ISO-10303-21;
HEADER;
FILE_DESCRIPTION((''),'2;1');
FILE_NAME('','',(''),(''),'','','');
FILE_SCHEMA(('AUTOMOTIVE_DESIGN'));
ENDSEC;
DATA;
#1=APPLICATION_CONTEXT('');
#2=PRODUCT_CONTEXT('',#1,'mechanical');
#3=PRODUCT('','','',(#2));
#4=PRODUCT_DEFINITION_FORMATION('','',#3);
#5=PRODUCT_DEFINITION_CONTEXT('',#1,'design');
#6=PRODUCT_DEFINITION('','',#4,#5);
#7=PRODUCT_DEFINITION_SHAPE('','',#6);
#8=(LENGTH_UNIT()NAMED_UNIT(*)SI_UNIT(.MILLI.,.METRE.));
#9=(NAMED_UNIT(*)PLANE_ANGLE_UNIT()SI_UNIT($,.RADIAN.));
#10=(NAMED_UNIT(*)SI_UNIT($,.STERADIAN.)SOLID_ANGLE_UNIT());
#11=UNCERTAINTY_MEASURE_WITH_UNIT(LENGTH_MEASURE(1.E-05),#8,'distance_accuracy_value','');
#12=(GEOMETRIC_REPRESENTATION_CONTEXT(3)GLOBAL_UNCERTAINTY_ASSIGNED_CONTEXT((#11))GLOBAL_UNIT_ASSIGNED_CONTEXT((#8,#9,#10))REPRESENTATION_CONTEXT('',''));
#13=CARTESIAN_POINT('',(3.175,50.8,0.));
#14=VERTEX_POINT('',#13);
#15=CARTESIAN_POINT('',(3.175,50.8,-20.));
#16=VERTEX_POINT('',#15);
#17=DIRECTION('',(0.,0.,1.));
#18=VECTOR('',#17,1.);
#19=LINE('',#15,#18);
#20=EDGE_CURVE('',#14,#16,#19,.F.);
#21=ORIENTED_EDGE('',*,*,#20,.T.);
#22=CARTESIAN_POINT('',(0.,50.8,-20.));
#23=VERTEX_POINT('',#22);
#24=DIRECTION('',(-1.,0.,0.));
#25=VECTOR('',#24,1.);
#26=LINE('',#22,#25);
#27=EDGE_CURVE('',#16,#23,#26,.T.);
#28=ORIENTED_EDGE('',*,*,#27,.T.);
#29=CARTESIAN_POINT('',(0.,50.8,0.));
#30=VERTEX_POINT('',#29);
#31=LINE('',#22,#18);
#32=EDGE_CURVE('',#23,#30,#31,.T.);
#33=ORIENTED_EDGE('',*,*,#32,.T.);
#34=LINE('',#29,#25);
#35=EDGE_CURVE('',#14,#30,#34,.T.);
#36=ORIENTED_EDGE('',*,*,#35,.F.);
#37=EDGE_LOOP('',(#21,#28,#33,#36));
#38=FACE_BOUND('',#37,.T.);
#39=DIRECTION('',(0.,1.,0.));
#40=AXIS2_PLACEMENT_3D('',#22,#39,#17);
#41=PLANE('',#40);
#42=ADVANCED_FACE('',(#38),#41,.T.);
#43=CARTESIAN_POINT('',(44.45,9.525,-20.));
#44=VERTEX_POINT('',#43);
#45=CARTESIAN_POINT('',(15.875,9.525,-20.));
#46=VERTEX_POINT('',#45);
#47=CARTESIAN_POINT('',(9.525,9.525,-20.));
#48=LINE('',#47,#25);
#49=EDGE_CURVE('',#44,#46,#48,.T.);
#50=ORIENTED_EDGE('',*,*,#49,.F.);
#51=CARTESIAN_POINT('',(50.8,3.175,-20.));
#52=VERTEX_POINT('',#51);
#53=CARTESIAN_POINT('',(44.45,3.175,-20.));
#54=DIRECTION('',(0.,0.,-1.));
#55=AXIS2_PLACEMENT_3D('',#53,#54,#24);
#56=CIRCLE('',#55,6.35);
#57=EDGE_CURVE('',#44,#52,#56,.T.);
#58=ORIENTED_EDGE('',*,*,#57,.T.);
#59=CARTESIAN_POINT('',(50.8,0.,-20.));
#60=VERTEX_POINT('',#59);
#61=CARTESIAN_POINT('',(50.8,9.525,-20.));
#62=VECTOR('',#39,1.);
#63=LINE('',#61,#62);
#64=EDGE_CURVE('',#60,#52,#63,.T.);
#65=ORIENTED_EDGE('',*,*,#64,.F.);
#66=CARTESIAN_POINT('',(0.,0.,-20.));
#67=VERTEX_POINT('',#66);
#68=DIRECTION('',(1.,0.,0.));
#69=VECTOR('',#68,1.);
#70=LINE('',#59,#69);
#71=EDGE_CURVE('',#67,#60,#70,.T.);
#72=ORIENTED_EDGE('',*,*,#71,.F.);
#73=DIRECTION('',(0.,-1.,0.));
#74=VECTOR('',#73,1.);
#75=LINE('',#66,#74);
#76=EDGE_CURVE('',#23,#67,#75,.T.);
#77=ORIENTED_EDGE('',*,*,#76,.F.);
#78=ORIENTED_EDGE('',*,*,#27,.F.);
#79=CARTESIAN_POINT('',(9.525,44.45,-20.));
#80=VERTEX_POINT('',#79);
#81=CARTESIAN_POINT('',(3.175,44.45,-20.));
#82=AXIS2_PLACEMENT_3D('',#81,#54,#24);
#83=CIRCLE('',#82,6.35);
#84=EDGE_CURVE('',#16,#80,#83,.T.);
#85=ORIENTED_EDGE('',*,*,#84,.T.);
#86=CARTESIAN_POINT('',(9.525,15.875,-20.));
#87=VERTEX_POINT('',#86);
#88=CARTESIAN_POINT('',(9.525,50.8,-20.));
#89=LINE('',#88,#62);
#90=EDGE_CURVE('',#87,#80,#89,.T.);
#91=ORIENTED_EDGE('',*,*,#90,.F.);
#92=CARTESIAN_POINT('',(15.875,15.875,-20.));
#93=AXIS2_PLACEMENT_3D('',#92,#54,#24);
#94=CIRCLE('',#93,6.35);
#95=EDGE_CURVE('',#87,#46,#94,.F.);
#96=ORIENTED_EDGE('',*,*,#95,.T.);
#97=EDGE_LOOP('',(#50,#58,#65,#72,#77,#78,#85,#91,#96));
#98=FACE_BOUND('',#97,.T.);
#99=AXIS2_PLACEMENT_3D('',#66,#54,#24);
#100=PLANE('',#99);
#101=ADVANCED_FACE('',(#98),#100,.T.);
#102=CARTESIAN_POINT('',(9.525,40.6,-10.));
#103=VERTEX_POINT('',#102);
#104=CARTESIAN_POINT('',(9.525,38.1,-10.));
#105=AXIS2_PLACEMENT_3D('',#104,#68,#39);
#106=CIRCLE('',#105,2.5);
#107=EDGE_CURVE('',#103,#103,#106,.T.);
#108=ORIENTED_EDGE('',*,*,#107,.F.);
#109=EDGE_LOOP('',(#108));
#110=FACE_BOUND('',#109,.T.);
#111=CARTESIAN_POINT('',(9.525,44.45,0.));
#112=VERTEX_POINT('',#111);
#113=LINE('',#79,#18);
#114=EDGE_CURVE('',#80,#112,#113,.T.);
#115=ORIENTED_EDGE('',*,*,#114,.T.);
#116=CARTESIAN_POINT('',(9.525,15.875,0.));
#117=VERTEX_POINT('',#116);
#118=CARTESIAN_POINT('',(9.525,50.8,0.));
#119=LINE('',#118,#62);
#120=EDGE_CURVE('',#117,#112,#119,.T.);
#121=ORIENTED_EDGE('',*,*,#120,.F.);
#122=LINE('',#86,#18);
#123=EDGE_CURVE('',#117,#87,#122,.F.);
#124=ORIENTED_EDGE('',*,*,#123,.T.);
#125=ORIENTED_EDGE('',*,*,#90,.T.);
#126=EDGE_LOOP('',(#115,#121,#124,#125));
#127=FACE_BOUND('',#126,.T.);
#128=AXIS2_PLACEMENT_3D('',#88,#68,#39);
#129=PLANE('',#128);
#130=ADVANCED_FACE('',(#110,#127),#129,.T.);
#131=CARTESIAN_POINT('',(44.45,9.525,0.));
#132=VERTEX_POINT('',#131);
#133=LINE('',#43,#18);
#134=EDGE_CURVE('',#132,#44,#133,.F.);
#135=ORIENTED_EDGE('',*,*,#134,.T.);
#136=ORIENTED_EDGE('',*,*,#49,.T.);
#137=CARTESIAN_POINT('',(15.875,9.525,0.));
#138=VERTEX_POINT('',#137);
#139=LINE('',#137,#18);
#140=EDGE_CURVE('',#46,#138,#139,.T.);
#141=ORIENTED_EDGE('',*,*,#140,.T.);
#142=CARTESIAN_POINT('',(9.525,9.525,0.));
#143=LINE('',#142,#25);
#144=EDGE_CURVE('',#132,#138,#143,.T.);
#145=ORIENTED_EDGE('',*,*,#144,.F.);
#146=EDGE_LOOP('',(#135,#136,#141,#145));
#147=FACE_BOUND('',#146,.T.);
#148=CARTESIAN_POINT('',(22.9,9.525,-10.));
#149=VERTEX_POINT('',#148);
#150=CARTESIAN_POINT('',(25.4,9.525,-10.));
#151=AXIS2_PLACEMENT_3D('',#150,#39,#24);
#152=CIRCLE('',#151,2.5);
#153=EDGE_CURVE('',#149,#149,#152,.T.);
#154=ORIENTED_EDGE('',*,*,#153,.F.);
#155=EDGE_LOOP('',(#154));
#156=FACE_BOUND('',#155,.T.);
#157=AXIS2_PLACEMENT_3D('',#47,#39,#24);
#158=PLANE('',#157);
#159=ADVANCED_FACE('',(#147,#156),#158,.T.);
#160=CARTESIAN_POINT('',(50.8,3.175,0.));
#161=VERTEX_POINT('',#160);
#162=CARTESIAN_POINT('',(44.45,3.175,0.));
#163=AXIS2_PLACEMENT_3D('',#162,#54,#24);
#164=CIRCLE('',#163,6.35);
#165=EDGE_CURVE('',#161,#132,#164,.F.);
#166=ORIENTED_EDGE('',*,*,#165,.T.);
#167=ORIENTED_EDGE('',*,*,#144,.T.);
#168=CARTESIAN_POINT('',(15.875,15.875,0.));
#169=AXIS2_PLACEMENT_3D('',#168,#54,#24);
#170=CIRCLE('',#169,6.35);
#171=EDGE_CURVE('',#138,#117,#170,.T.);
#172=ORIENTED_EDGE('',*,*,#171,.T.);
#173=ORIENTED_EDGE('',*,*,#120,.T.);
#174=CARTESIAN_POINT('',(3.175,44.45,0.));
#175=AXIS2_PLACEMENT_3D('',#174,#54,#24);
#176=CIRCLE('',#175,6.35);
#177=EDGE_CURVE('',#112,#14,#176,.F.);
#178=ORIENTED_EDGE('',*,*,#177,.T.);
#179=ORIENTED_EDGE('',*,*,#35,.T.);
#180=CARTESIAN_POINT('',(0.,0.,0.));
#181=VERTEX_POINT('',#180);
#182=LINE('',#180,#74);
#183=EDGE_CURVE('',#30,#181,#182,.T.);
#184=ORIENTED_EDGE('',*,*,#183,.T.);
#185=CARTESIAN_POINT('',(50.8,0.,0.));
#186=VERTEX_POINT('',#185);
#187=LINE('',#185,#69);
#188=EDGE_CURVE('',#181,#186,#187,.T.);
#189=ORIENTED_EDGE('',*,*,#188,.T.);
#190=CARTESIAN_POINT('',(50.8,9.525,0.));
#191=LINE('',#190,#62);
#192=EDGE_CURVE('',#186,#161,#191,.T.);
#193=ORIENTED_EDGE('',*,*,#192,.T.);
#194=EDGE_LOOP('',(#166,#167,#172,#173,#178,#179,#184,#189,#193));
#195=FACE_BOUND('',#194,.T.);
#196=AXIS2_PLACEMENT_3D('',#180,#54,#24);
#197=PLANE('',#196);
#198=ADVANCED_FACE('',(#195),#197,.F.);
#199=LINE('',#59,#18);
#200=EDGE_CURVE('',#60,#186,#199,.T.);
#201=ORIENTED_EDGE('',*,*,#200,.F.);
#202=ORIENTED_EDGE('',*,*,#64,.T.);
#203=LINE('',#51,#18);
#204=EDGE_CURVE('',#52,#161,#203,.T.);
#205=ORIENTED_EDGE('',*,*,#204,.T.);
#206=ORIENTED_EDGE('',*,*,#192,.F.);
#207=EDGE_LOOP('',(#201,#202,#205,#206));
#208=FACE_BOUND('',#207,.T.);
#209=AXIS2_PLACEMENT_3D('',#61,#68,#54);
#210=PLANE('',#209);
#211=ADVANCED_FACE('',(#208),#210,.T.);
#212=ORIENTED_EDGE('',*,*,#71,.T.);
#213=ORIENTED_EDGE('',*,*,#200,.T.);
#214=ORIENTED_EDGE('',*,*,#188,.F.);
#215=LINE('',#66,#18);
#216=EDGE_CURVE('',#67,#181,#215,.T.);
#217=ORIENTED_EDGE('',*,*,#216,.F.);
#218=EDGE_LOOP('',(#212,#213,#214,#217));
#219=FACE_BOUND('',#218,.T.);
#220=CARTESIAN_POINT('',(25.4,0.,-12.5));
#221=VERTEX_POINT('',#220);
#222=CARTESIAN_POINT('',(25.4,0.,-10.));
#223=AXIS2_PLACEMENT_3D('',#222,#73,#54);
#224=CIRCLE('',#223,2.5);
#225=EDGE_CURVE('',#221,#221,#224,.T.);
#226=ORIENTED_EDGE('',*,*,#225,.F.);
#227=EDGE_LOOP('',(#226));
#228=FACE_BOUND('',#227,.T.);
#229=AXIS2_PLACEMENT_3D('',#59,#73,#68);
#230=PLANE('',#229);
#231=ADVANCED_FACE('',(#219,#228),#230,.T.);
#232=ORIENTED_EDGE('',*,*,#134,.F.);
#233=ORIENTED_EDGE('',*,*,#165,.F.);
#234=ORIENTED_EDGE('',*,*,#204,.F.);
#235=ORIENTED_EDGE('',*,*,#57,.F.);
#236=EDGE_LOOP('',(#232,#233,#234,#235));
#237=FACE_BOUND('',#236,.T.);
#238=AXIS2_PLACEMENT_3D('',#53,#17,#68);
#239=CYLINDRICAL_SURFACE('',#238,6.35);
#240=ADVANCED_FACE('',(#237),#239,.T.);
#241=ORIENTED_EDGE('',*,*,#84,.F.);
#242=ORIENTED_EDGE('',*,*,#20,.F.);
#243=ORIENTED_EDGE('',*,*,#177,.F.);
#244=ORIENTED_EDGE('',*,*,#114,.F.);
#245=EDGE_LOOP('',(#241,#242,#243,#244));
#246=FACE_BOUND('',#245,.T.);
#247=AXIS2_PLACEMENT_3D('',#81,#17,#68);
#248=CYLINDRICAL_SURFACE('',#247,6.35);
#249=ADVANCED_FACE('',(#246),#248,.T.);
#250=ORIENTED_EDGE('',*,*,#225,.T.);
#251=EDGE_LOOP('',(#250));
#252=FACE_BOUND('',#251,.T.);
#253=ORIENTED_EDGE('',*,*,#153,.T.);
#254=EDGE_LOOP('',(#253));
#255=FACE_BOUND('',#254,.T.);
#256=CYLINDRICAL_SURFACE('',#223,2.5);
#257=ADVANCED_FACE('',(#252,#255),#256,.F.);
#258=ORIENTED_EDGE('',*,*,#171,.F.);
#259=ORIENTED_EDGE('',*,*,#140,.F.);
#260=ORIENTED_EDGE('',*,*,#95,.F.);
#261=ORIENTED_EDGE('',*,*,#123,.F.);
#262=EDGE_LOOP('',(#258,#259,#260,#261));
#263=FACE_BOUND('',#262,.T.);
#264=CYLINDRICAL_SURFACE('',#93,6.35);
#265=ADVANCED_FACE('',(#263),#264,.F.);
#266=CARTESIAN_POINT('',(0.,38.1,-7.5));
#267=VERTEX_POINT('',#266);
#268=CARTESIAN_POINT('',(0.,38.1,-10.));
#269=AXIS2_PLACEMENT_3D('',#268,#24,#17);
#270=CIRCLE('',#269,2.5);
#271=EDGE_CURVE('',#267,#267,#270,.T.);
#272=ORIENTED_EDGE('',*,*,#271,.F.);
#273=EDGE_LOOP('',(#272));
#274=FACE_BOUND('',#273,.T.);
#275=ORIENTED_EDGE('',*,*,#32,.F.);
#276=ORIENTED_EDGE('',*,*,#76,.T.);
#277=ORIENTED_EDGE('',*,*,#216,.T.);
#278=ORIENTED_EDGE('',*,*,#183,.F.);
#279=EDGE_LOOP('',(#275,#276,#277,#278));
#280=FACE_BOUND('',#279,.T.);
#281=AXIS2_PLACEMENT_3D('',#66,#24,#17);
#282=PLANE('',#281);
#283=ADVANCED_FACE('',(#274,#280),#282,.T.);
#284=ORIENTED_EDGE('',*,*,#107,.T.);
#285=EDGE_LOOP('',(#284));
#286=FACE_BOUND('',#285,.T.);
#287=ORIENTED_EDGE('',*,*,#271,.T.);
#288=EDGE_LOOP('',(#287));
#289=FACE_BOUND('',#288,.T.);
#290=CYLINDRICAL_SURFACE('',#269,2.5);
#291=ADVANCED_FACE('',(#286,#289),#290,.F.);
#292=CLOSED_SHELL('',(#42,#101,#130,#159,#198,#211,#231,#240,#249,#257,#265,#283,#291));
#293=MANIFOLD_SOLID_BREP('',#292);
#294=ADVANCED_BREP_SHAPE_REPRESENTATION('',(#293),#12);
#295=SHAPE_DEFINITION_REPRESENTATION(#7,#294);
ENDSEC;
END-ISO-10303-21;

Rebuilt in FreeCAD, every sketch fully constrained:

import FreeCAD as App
import Part
import Sketcher
Q = App.Units.Quantity


def edges_at(feature, points):
    """Names of the edges that pass closest to the given points."""
    edges = feature.Shape.Edges
    near = lambda p: min(range(len(edges)), key=lambda i: edges[i].distToShape(Part.Vertex(*p))[0])
    return sorted({f"Edge{near(p) + 1}" for p in points})


def add_polygon(sketch, points):
    """Adds a closed chain of lines whose ends are joined by coincident constraints."""
    first, n = sketch.GeometryCount, len(points)
    for a, b in zip(points, points[1:] + points[:1]):
        sketch.addGeometry(Part.LineSegment(App.Vector(*a, 0), App.Vector(*b, 0)), False)
    for i in range(n):
        sketch.addConstraint(Sketcher.Constraint("Coincident", first + i, 2, first + (i + 1) % n, 1))

doc = App.newDocument("Part")
body = doc.addObject("PartDesign::Body", "Body")

# Sketch on XY plane
sketch1 = doc.addObject("Sketcher::SketchObject", "Sketch")
body.addObject(sketch1)
sketch1.AttachmentSupport = (doc.XY_Plane, [""])
sketch1.MapMode = "FlatFace"
add_polygon(sketch1, [(0, 50.8), (0, 0), (50.8, 0), (50.8, 9.525), (9.525, 9.525), (9.525, 50.8)])  # lines 0-5
sketch1.addConstraint([
    Sketcher.Constraint("Vertical", 0),
    Sketcher.Constraint("Horizontal", 1),
    Sketcher.Constraint("Vertical", 2),
    Sketcher.Constraint("Horizontal", 3),
    Sketcher.Constraint("Vertical", 4),
    Sketcher.Constraint("Horizontal", 5),
    Sketcher.Constraint("Coincident", 0, 2, -1, 1),
    Sketcher.Constraint("Equal", 1, 0),
    Sketcher.Constraint("Equal", 5, 2),
    Sketcher.Constraint("DistanceX", 1, 1, 1, 2, Q("2 in")),
    Sketcher.Constraint("DistanceX", 3, 2, 3, 1, Q("1.625 in")),
])
pad1 = doc.addObject("PartDesign::Pad", "Pad")
body.addObject(pad1)
pad1.Profile = sketch1
pad1.Length = 20
pad1.Reversed = True
doc.recompute()

fillet = doc.addObject("PartDesign::Fillet", "Fillet")
body.addObject(fillet)
fillet.Base = (pad1, edges_at(pad1, [(9.525, 50.8, -10), (9.525, 9.525, -10), (50.8, 9.525, -10)]))
fillet.Radius = Q("0.25 in")

# Sketch on XZ plane
sketch2 = doc.addObject("Sketcher::SketchObject", "Sketch001")
body.addObject(sketch2)
sketch2.AttachmentSupport = (doc.XZ_Plane, [""])
sketch2.MapMode = "FlatFace"
sketch2.addGeometry(Part.Circle(App.Vector(25.4, -10, 0), App.Vector(0, 0, 1), 2.5), False)
sketch2.addConstraint([
    Sketcher.Constraint("DistanceX", -1, 1, 0, 3, Q("1 in")),
    Sketcher.Constraint("Diameter", 0, 5.0),
    Sketcher.Constraint("DistanceY", 0, 3, -1, 1, 10.0),
])
doc.recompute()
hole = doc.addObject("PartDesign::Hole", "Hole")
body.addObject(hole)
hole.Profile = sketch2
hole.ThreadType = "None"
hole.Diameter = 5
hole.DepthType = "ThroughAll"

# Sketch on YZ plane
sketch3 = doc.addObject("Sketcher::SketchObject", "Sketch002")
body.addObject(sketch3)
sketch3.AttachmentSupport = (doc.YZ_Plane, [""])
sketch3.MapMode = "FlatFace"
sketch3.addGeometry(Part.Circle(App.Vector(38.1, -10, 0), App.Vector(0, 0, 1), 2.5), False)
sketch3.addConstraint([
    Sketcher.Constraint("DistanceX", -1, 1, 0, 3, Q("1.5 in")),
    Sketcher.Constraint("Diameter", 0, 5.0),
    Sketcher.Constraint("DistanceY", 0, 3, -1, 1, 10.0),
])
doc.recompute()
hole2 = doc.addObject("PartDesign::Hole", "Hole001")
body.addObject(hole2)
hole2.Profile = sketch3
hole2.ThreadType = "None"
hole2.Diameter = 5
hole2.DepthType = "ThroughAll"
hole2.Reversed = True

doc.recompute()
